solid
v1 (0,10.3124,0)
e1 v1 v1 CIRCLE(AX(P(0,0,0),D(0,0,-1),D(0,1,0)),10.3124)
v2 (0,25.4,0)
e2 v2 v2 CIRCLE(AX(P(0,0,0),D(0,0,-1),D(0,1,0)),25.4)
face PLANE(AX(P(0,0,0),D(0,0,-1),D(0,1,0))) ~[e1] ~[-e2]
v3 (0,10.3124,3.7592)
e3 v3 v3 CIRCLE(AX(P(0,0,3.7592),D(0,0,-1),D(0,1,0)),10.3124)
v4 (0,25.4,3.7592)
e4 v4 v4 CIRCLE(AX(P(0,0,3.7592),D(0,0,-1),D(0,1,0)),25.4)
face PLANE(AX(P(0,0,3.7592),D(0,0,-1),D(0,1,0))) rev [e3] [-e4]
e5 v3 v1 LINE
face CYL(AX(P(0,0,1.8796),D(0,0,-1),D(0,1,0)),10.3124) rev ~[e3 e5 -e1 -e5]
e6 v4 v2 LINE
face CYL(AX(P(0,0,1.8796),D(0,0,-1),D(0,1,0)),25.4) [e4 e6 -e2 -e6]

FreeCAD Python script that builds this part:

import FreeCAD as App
import Part
import Sketcher
from FreeCAD import Vector
Q = App.Units.Quantity


def add_polygon(sketch, points):
    """Adds a closed chain of lines whose ends are joined by coincident constraints."""
    first, n = sketch.GeometryCount, len(points)
    for a, b in zip(points, points[1:] + points[:1]):
        sketch.addGeometry(Part.LineSegment(App.Vector(*a, 0), App.Vector(*b, 0)), False)
    for i in range(n):
        sketch.addConstraint(Sketcher.Constraint("Coincident", first + i, 2, first + (i + 1) % n, 1))

doc = App.newDocument("Part")
body = doc.addObject("PartDesign::Body", "Body")

# Sketch on YZ plane
sketch1 = body.newObject("Sketcher::SketchObject", "Sketch")
sketch1.AttachmentSupport = (doc.getObject("YZ_Plane"), [""])
sketch1.MapMode = "FlatFace"
add_polygon(sketch1, [(25.4, 3.8), (10.3, 3.8), (10.3, 0), (25.4, 0)])  # lines 0-3
sketch1.addConstraint([
    Sketcher.Constraint("Horizontal", 0),
    Sketcher.Constraint("Vertical", 1),
    Sketcher.Constraint("Horizontal", 2),
    Sketcher.Constraint("Vertical", 3),
    Sketcher.Constraint("PointOnObject", 1, 2, -1),
    Sketcher.Constraint("DistanceX", -1, 1, 2, 2, Q("1 in")),
    Sketcher.Constraint("DistanceX", 0, 2, 0, 1, Q("0.594 in")),
    Sketcher.Constraint("DistanceY", 1, 2, 1, 1, Q("0.148 in")),
])
revolution = body.newObject("PartDesign::Revolution", "Revolution")
revolution.Profile = sketch1
revolution.ReferenceAxis = (sketch1, ["V_Axis"])
revolution.Angle = 360

doc.recompute()
